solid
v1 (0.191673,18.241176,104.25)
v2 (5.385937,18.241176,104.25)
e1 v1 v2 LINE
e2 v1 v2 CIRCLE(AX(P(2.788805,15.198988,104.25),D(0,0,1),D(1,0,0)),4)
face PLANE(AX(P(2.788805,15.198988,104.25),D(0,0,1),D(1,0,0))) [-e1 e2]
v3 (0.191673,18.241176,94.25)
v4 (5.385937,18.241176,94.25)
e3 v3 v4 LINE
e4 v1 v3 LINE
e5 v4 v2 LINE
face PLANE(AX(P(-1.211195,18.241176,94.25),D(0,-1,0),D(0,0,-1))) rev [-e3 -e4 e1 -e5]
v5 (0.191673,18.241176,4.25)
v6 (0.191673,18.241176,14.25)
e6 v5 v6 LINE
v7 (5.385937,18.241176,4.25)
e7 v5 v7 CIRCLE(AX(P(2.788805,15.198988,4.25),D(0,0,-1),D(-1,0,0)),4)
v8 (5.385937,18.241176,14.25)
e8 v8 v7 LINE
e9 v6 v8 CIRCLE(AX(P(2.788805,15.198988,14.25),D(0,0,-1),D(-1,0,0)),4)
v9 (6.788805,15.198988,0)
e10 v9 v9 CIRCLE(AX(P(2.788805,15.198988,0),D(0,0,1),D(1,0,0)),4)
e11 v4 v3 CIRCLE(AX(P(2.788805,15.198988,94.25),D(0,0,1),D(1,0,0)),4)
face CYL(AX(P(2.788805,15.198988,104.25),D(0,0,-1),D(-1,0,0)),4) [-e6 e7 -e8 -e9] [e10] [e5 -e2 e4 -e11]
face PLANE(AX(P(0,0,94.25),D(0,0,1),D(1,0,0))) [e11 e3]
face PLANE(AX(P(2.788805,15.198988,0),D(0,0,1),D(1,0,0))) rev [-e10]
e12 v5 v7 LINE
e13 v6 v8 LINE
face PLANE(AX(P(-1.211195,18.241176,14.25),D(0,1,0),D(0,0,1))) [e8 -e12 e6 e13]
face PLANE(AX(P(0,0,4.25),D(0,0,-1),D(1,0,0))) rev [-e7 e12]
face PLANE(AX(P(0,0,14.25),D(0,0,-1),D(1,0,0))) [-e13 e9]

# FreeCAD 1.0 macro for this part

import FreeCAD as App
import Part
import Sketcher
from FreeCAD import Vector
Q = App.Units.Quantity

doc = App.newDocument("Part")
body = doc.addObject("PartDesign::Body", "Body")

# Sketch on XY plane
sketch1 = doc.addObject("Sketcher::SketchObject", "Sketch")
body.addObject(sketch1)
sketch1.AttachmentSupport = (doc.XY_Plane, [""])
sketch1.MapMode = "FlatFace"
sketch1.addGeometry(Part.Circle(Vector(2.8, 15.2, 0), Vector(0, 0, 1), 4), False)
sketch1.addConstraint(Sketcher.Constraint("Diameter", 0, Q("8 mm")))
sketch1.addConstraint(Sketcher.Constraint("DistanceY", -1, 1, 0, 3, Q("15.198988 mm")))
sketch1.addConstraint(Sketcher.Constraint("DistanceX", -1, 1, 0, 3, Q("2.788805 mm")))
pad1 = doc.addObject("PartDesign::Pad", "Pad")
body.addObject(pad1)
pad1.Profile = sketch1
pad1.Length = 104.25

# Sketch on XY plane
sketch2 = doc.addObject("Sketcher::SketchObject", "Sketch001")
body.addObject(sketch2)
sketch2.AttachmentSupport = (doc.XY_Plane, [""])
sketch2.MapMode = "FlatFace"
sketch2.AttachmentOffset = App.Placement(Vector(0, 0, 104.25), App.Rotation())
sketch2.addGeometry(Part.LineSegment(Vector(6.8, 18.2, 0), Vector(6.8, 20.5, 0)), False)
sketch2.addGeometry(Part.LineSegment(Vector(6.8, 20.5, 0), Vector(-1.4, 20.5, 0)), False)
sketch2.addGeometry(Part.LineSegment(Vector(-1.4, 20.5, 0), Vector(-1.5, 18.2, 0)), False)
sketch2.addGeometry(Part.LineSegment(Vector(-1.5, 18.2, 0), Vector(6.8, 18.2, 0)), False)
sketch2.addConstraint(Sketcher.Constraint("Coincident", 0, 2, 1, 1))
sketch2.addConstraint(Sketcher.Constraint("Coincident", 1, 2, 2, 1))
sketch2.addConstraint(Sketcher.Constraint("Coincident", 2, 2, 3, 1))
sketch2.addConstraint(Sketcher.Constraint("Coincident", 3, 2, 0, 1))
sketch2.addConstraint(Sketcher.Constraint("Vertical", 0))
sketch2.addConstraint(Sketcher.Constraint("Horizontal", 1))
sketch2.addConstraint(Sketcher.Constraint("Horizontal", 3))
sketch2.addConstraint(Sketcher.Constraint("DistanceX", 1, 2, 1, 1, Q("8.142292 mm")))
sketch2.addConstraint(Sketcher.Constraint("DistanceX", 3, 1, 3, 2, Q("8.240625 mm")))
sketch2.addConstraint(Sketcher.Constraint("DistanceY", 0, 1, 0, 2, Q("2.249375 mm")))
sketch2.addConstraint(Sketcher.Constraint("DistanceY", -1, 1, 0, 2, Q("20.490551 mm")))
sketch2.addConstraint(Sketcher.Constraint("DistanceX", 2, 2, -1, 1, Q("1.45182 mm")))
pocket1 = doc.addObject("PartDesign::Pocket", "Pocket")
body.addObject(pocket1)
pocket1.Profile = sketch2
pocket1.Length = 10
doc.recompute()

datumplane = doc.addObject("PartDesign::Plane", "DatumPlane")
body.addObject(datumplane)
datumplane.AttachmentSupport = (doc.XY_Plane, [""])
datumplane.MapMode = "FlatFace"
datumplane.AttachmentOffset = App.Placement(Vector(0, 0, 54.25), App.Rotation())
mirrored = doc.addObject("PartDesign::Mirrored", "Mirrored")
body.addObject(mirrored)
mirrored.Originals = [pocket1]
mirrored.MirrorPlane = (datumplane, [""])
body.Tip = mirrored

doc.recompute()
